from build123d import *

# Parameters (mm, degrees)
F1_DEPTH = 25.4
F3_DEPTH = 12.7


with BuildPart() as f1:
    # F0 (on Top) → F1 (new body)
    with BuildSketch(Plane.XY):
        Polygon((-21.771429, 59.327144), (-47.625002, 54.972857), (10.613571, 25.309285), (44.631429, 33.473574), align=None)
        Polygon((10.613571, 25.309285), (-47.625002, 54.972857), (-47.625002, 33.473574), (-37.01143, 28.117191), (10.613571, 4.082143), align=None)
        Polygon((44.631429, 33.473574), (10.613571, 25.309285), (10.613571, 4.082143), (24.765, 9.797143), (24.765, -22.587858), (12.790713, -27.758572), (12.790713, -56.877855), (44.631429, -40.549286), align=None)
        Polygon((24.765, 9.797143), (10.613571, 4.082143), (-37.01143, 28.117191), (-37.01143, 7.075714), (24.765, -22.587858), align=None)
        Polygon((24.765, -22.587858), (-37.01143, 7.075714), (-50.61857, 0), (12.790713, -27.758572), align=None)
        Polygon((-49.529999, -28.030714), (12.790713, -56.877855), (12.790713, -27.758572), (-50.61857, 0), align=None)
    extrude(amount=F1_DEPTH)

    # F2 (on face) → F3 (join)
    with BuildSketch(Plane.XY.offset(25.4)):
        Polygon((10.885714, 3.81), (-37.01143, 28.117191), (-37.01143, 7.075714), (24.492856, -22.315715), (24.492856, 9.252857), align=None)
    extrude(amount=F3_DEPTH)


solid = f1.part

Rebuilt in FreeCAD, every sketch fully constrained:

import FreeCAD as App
import Part
import Sketcher
Q = App.Units.Quantity

doc = App.newDocument("Part")
body = doc.addObject("PartDesign::Body", "Body")

sketch1 = body.newObject("Sketcher::SketchObject", "Sketch")
sketch1.AttachmentSupport = (doc.getObject("XY_Plane"), [""])
sketch1.MapMode = "FlatFace"
sketch1.addGeometry(Part.LineSegment(App.Vector(-22, 59, 0), App.Vector(-48, 55, 0)), False)
sketch1.addGeometry(Part.LineSegment(App.Vector(-48, 55, 0), App.Vector(-48, 33, 0)), False)
sketch1.addGeometry(Part.LineSegment(App.Vector(-48, 33, 0), App.Vector(-37, 28, 0)), False)
sketch1.addGeometry(Part.LineSegment(App.Vector(-37, 28, 0), App.Vector(-37, 7, 0)), False)
sketch1.addGeometry(Part.LineSegment(App.Vector(-37, 7, 0), App.Vector(-51, 0, 0)), False)
sketch1.addGeometry(Part.LineSegment(App.Vector(-51, 0, 0), App.Vector(-50, -28, 0)), False)
sketch1.addGeometry(Part.LineSegment(App.Vector(-50, -28, 0), App.Vector(13, -57, 0)), False)
sketch1.addGeometry(Part.LineSegment(App.Vector(13, -57, 0), App.Vector(45, -41, 0)), False)
sketch1.addGeometry(Part.LineSegment(App.Vector(45, -41, 0), App.Vector(45, 33, 0)), False)
sketch1.addGeometry(Part.LineSegment(App.Vector(45, 33, 0), App.Vector(-22, 59, 0)), False)
sketch1.addConstraint(Sketcher.Constraint("Coincident", 0, 2, 1, 1))
sketch1.addConstraint(Sketcher.Constraint("Coincident", 1, 2, 2, 1))
sketch1.addConstraint(Sketcher.Constraint("Coincident", 2, 2, 3, 1))
sketch1.addConstraint(Sketcher.Constraint("Coincident", 3, 2, 4, 1))
sketch1.addConstraint(Sketcher.Constraint("Coincident", 4, 2, 5, 1))
sketch1.addConstraint(Sketcher.Constraint("Coincident", 5, 2, 6, 1))
sketch1.addConstraint(Sketcher.Constraint("Coincident", 6, 2, 7, 1))
sketch1.addConstraint(Sketcher.Constraint("Coincident", 7, 2, 8, 1))
sketch1.addConstraint(Sketcher.Constraint("Coincident", 8, 2, 9, 1))
sketch1.addConstraint(Sketcher.Constraint("Coincident", 9, 2, 0, 1))
sketch1.addConstraint(Sketcher.Constraint("Vertical", 1))
sketch1.addConstraint(Sketcher.Constraint("Vertical", 3))
sketch1.addConstraint(Sketcher.Constraint("Vertical", 8))
sketch1.addConstraint(Sketcher.Constraint("PointOnObject", 4, 2, -1))
sketch1.addConstraint(Sketcher.Constraint("Horizontal", 1, 2, 8, 2))
sketch1.addConstraint(Sketcher.Constraint("DistanceX", 2, 2, 9, 2, Q("0.6 in")))
sketch1.addConstraint(Sketcher.Constraint("DistanceX", 5, 2, -1, 1, Q("1.95 in")))
sketch1.addConstraint(Sketcher.Constraint("DistanceX", 4, 2, 7, 2, Q("3.75 in")))
sketch1.addConstraint(Sketcher.Constraint("DistanceX", 0, 2, -1, 1, Q("1.8750001 in")))
sketch1.addConstraint(Sketcher.Constraint("DistanceY", 7, 2, 3, 2, Q("1.875 in")))
sketch1.addConstraint(Sketcher.Constraint("DistanceY", 8, 1, 8, 2, Q("74.02286 mm")))
sketch1.addConstraint(Sketcher.Constraint("Distance", 9, Q("71.258309 mm")))
sketch1.addConstraint(Sketcher.Constraint("DistanceY", 1, 2, 1, 1, Q("21.499283 mm")))
sketch1.addConstraint(Sketcher.Constraint("DistanceY", 3, 2, 3, 1, Q("21.041477 mm")))
sketch1.addConstraint(Sketcher.Constraint("DistanceX", 2, 2, -1, 1, Q("37.01143 mm")))
sketch1.addConstraint(Sketcher.Constraint("DistanceY", -1, 1, 2, 2, Q("28.117191 mm")))
sketch1.addConstraint(Sketcher.Constraint("DistanceX", 4, 2, -1, 1, Q("50.61857 mm")))
sketch1.addConstraint(Sketcher.Constraint("DistanceY", 5, 2, 1, 2, Q("61.504288 mm")))
sketch1.addConstraint(Sketcher.Constraint("DistanceY", 6, 2, 5, 2, Q("28.847141 mm")))
sketch1.addConstraint(Sketcher.Constraint("Distance", 6, Q("68.673348 mm")))
pad1 = body.newObject("PartDesign::Pad", "Pad")
pad1.Profile = sketch1
pad1.Length = Q("1 in")

sketch2 = body.newObject("Sketcher::SketchObject", "Sketch001")
sketch2.AttachmentSupport = (doc.getObject("XY_Plane"), [""])
sketch2.MapMode = "FlatFace"
sketch2.AttachmentOffset = App.Placement(App.Vector(0, 0, 1 * 25.4), App.Rotation())
sketch2.addGeometry(Part.LineSegment(App.Vector(11, 4, 0), App.Vector(-37, 28, 0)), False)
sketch2.addGeometry(Part.LineSegment(App.Vector(-37, 28, 0), App.Vector(-37, 7, 0)), False)
sketch2.addGeometry(Part.LineSegment(App.Vector(-37, 7, 0), App.Vector(24, -22, 0)), False)
sketch2.addGeometry(Part.LineSegment(App.Vector(24, -22, 0), App.Vector(24, 9, 0)), False)
sketch2.addGeometry(Part.LineSegment(App.Vector(24, 9, 0), App.Vector(11, 4, 0)), False)
sketch2.addConstraint(Sketcher.Constraint("Coincident", 0, 2, 1, 1))
sketch2.addConstraint(Sketcher.Constraint("Coincident", 1, 2, 2, 1))
sketch2.addConstraint(Sketcher.Constraint("Coincident", 2, 2, 3, 1))
sketch2.addConstraint(Sketcher.Constraint("Coincident", 3, 2, 4, 1))
sketch2.addConstraint(Sketcher.Constraint("Coincident", 4, 2, 0, 1))
sketch2.addConstraint(Sketcher.Constraint("Vertical", 1))
sketch2.addConstraint(Sketcher.Constraint("Vertical", 3))
sketch2.addConstraint(Sketcher.Constraint("DistanceY", -1, 1, 4, 2, Q("0.15 in")))
sketch2.addConstraint(Sketcher.Constraint("Distance", 2, Q("68.166218 mm")))
sketch2.addConstraint(Sketcher.Constraint("Distance", 4, Q("14.655341 mm")))
sketch2.addConstraint(Sketcher.Constraint("DistanceY", 1, 2, 1, 1, Q("21.041477 mm")))
sketch2.addConstraint(Sketcher.Constraint("DistanceY", 3, 1, 3, 2, Q("31.568572 mm")))
sketch2.addConstraint(Sketcher.Constraint("DistanceX", 0, 2, -1, 1, Q("37.01143 mm")))
sketch2.addConstraint(Sketcher.Constraint("DistanceY", -1, 1, 0, 2, Q("28.117191 mm")))
sketch2.addConstraint(Sketcher.Constraint("DistanceY", 2, 2, 1, 2, Q("29.391429 mm")))
pad2 = body.newObject("PartDesign::Pad", "Pad001")
pad2.Profile = sketch2
pad2.Length = Q("0.5 in")

doc.recompute()
